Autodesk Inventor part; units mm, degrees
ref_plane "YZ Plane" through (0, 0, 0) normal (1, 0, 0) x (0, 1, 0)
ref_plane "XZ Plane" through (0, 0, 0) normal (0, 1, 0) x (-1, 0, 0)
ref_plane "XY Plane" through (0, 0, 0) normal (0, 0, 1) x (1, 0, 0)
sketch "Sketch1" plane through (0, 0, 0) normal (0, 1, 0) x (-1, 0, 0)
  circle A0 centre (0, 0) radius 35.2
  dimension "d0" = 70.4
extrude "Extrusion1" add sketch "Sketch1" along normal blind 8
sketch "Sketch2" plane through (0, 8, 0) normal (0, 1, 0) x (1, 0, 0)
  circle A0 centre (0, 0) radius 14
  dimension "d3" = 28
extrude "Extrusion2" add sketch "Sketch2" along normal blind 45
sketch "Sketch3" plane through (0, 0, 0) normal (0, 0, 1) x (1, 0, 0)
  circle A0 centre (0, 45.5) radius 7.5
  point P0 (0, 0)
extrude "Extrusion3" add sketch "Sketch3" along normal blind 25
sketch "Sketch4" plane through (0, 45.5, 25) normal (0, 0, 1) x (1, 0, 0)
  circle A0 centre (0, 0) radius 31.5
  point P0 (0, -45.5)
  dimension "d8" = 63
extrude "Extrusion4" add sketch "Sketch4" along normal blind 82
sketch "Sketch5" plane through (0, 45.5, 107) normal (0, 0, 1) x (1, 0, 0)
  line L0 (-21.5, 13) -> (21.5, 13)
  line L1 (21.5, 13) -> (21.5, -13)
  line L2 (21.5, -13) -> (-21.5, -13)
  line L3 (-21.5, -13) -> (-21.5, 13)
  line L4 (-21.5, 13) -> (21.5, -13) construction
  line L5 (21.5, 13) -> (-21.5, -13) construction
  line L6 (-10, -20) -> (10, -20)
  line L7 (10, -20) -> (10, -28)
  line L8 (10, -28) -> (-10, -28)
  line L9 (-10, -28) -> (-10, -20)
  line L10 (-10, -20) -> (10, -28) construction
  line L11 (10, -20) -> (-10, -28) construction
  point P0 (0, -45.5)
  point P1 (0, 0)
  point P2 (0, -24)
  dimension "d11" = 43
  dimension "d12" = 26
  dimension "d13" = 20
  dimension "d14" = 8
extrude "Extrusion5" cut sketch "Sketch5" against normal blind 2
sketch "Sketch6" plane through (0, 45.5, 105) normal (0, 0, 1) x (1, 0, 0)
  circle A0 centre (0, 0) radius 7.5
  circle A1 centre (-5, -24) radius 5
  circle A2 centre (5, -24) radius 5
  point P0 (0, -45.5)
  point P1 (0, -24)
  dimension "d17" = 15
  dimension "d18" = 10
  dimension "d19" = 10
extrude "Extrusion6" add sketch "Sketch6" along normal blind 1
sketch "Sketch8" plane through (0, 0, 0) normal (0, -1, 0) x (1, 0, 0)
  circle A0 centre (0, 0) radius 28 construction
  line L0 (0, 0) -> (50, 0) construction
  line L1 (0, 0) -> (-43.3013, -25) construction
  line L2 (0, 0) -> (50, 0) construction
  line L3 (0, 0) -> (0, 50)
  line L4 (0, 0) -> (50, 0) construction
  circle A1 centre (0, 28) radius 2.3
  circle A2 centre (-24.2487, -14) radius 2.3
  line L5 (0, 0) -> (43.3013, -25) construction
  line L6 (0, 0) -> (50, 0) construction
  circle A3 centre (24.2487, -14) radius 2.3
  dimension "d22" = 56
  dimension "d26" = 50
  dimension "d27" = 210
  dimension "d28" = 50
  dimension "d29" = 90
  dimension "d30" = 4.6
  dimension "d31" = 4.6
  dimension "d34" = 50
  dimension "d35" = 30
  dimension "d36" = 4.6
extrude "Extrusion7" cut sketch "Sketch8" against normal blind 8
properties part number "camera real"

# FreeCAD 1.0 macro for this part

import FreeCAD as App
import Part
import Sketcher
from FreeCAD import Vector

doc = App.newDocument("Part")
params = doc.addObject("Spreadsheet::Sheet", "Params")
for row, (alias, value) in enumerate([
    ("sketch1_diameter", "70.4 mm"),
    ("pad1_length", "8 mm"),
    ("sketch2_diameter", "28 mm"),
    ("pad2_length", "45 mm"),
    ("sketch3_diameter", "15 mm"),
    ("pad3_length", "25 mm"),
    ("sketch4_diameter", "63 mm"),
    ("pad4_length", "82 mm"),
    ("sketch5_width", "43 mm"),
    ("sketch5_width2", "20 mm"),
    ("sketch5_height", "26 mm"),
    ("sketch5_height2", "8 mm"),
    ("pocket1_length", "2 mm"),
    ("sketch6_diameter", "15 mm"),
    ("sketch6_diameter2", "10 mm"),
    ("pad5_length", "1 mm"),
    ("sketch7_diameter", "4.6 mm"),
    ("pocket2_length", "8 mm"),
], start=1):
    params.set(f"A{row}", alias)
    params.set(f"B{row}", "=" + value)
    params.setAlias(f"B{row}", alias)

body = doc.addObject("PartDesign::Body", "Body")

# Sketch on XZ plane
sketch1 = body.newObject("Sketcher::SketchObject", "Sketch")
sketch1.AttachmentSupport = (doc.getObject("XZ_Plane"), [""])
sketch1.MapMode = "FlatFace"
sketch1.addGeometry(Part.Circle(Vector(0, 0, 0), Vector(0, 0, 1), 35.2), False)
sketch1.addConstraint([
    Sketcher.Constraint("Coincident", 0, 3, -1, 1),
    Sketcher.Constraint("Diameter", 0, 70.4),
])
sketch1.setExpression("Constraints[1]", "Params.sketch1_diameter")
pad1 = body.newObject("PartDesign::Pad", "Pad")
pad1.Profile = sketch1
pad1.setExpression("Length", "Params.pad1_length")
pad1.Reversed = True

# Sketch on XZ plane
sketch2 = body.newObject("Sketcher::SketchObject", "Sketch001")
sketch2.AttachmentSupport = (doc.getObject("XZ_Plane"), [""])
sketch2.MapMode = "FlatFace"
sketch2.AttachmentOffset = App.Placement(Vector(0, 0, -8), App.Rotation())
sketch2.addGeometry(Part.Circle(Vector(0, 0, 0), Vector(0, 0, 1), 14), False)
sketch2.addConstraint([
    Sketcher.Constraint("Coincident", 0, 3, -1, 1),
    Sketcher.Constraint("Diameter", 0, 28.0),
])
sketch2.setExpression("Constraints[1]", "Params.sketch2_diameter")
pad2 = body.newObject("PartDesign::Pad", "Pad001")
pad2.Profile = sketch2
pad2.setExpression("Length", "Params.pad2_length")
pad2.Reversed = True

# Sketch on XY plane
sketch3 = body.newObject("Sketcher::SketchObject", "Sketch002")
sketch3.AttachmentSupport = (doc.getObject("XY_Plane"), [""])
sketch3.MapMode = "FlatFace"
sketch3.addGeometry(Part.Circle(Vector(0, 45.5, 0), Vector(0, 0, 1), 7.5), False)
sketch3.addConstraint([
    Sketcher.Constraint("PointOnObject", 0, 3, -2),
    Sketcher.Constraint("Diameter", 0, 15.0),
    Sketcher.Constraint("DistanceY", -1, 1, 0, 3, 45.5),
])
sketch3.setExpression("Constraints[1]", "Params.sketch3_diameter")
pad3 = body.newObject("PartDesign::Pad", "Pad002")
pad3.Profile = sketch3
pad3.setExpression("Length", "Params.pad3_length")

# Sketch on XY plane
sketch4 = body.newObject("Sketcher::SketchObject", "Sketch003")
sketch4.AttachmentSupport = (doc.getObject("XY_Plane"), [""])
sketch4.MapMode = "FlatFace"
sketch4.AttachmentOffset = App.Placement(Vector(0, 0, 25), App.Rotation())
sketch4.addGeometry(Part.Circle(Vector(0, 45.5, 0), Vector(0, 0, 1), 31.5), False)
sketch4.addConstraint([
    Sketcher.Constraint("PointOnObject", 0, 3, -2),
    Sketcher.Constraint("Diameter", 0, 63.0),
    Sketcher.Constraint("DistanceY", -1, 1, 0, 3, 45.5),
])
sketch4.setExpression("Constraints[1]", "Params.sketch4_diameter")
pad4 = body.newObject("PartDesign::Pad", "Pad003")
pad4.Profile = sketch4
pad4.setExpression("Length", "Params.pad4_length")

# Sketch on XY plane
sketch5 = body.newObject("Sketcher::SketchObject", "Sketch004")
sketch5.AttachmentSupport = (doc.getObject("XY_Plane"), [""])
sketch5.MapMode = "FlatFace"
sketch5.AttachmentOffset = App.Placement(Vector(0, 0, 107), App.Rotation())
sketch5.addGeometry([
    Part.LineSegment(Vector(21.5, 58.5, 0), Vector(-21.5, 58.5, 0)),  # 0
    Part.LineSegment(Vector(-21.5, 58.5, 0), Vector(-21.5, 32.5, 0)),  # 1
    Part.LineSegment(Vector(-21.5, 32.5, 0), Vector(21.5, 32.5, 0)),  # 2
    Part.LineSegment(Vector(21.5, 32.5, 0), Vector(21.5, 58.5, 0)),  # 3
    Part.LineSegment(Vector(10, 25.5, 0), Vector(-10, 25.5, 0)),  # 4
    Part.LineSegment(Vector(-10, 25.5, 0), Vector(-10, 17.5, 0)),  # 5
    Part.LineSegment(Vector(-10, 17.5, 0), Vector(10, 17.5, 0)),  # 6
    Part.LineSegment(Vector(10, 17.5, 0), Vector(10, 25.5, 0)),  # 7
], False)
sketch5.addConstraint([
    Sketcher.Constraint("Coincident", 0, 2, 1, 1),
    Sketcher.Constraint("Coincident", 1, 2, 2, 1),
    Sketcher.Constraint("Coincident", 2, 2, 3, 1),
    Sketcher.Constraint("Coincident", 3, 2, 0, 1),
    Sketcher.Constraint("Coincident", 4, 2, 5, 1),
    Sketcher.Constraint("Coincident", 5, 2, 6, 1),
    Sketcher.Constraint("Coincident", 6, 2, 7, 1),
    Sketcher.Constraint("Coincident", 7, 2, 4, 1),
    Sketcher.Constraint("Horizontal", 0),
    Sketcher.Constraint("Vertical", 1),
    Sketcher.Constraint("Horizontal", 2),
    Sketcher.Constraint("Vertical", 3),
    Sketcher.Constraint("Horizontal", 4),
    Sketcher.Constraint("Vertical", 5),
    Sketcher.Constraint("Horizontal", 6),
    Sketcher.Constraint("Vertical", 7),
    Sketcher.Constraint("DistanceX", 0, 2, 0, 1, 43.0),
    Sketcher.Constraint("DistanceX", 4, 2, 4, 1, 20.0),
    Sketcher.Constraint("DistanceY", 1, 2, 1, 1, 26.0),
    Sketcher.Constraint("DistanceY", 5, 2, 5, 1, 8.0),
    Sketcher.Constraint("DistanceX", 4, 2, -1, 1, 10.0),
    Sketcher.Constraint("DistanceY", 4, 2, 1, 2, 7.0),
    Sketcher.Constraint("DistanceX", 0, 2, -1, 1, 21.5),
    Sketcher.Constraint("DistanceY", -1, 1, 0, 2, 58.5),
])
sketch5.setExpression("Constraints[16]", "Params.sketch5_width")
sketch5.setExpression("Constraints[17]", "Params.sketch5_width2")
sketch5.setExpression("Constraints[18]", "Params.sketch5_height")
sketch5.setExpression("Constraints[19]", "Params.sketch5_height2")
pocket1 = body.newObject("PartDesign::Pocket", "Pocket")
pocket1.Profile = sketch5
pocket1.setExpression("Length", "Params.pocket1_length")

# Sketch on XY plane
sketch6 = body.newObject("Sketcher::SketchObject", "Sketch005")
sketch6.AttachmentSupport = (doc.getObject("XY_Plane"), [""])
sketch6.MapMode = "FlatFace"
sketch6.AttachmentOffset = App.Placement(Vector(0, 0, 105), App.Rotation())
sketch6.addGeometry([
    Part.Circle(Vector(0, 45.5, 0), Vector(0, 0, 1), 7.5),
    Part.Circle(Vector(-5, 21.5, 0), Vector(0, 0, 1), 5),
    Part.Circle(Vector(5, 21.5, 0), Vector(0, 0, 1), 5),
], False)
sketch6.addConstraint([
    Sketcher.Constraint("Equal", 1, 2),
    Sketcher.Constraint("Symmetric", 1, 3, 2, 3, -2),
    Sketcher.Constraint("PointOnObject", 0, 3, -2),
    Sketcher.Constraint("Diameter", 0, 15.0),
    Sketcher.Constraint("Diameter", 1, 10.0),
    Sketcher.Constraint("DistanceX", 1, 3, 2, 3, 10.0),
    Sketcher.Constraint("DistanceY", 1, 3, 0, 3, 24.0),
    Sketcher.Constraint("DistanceY", -1, 1, 0, 3, 45.5),
])
sketch6.setExpression("Constraints[3]", "Params.sketch6_diameter")
sketch6.setExpression("Constraints[4]", "Params.sketch6_diameter2")
pad5 = body.newObject("PartDesign::Pad", "Pad004")
pad5.Profile = sketch6
pad5.setExpression("Length", "Params.pad5_length")

# Sketch on XZ plane
sketch7 = body.newObject("Sketcher::SketchObject", "Sketch006")
sketch7.AttachmentSupport = (doc.getObject("XZ_Plane"), [""])
sketch7.MapMode = "FlatFace"
sketch7.addGeometry([
    Part.Circle(Vector(0, 28, 0), Vector(0, 0, 1), 2.3),
    Part.Circle(Vector(-24.2487, -14, 0), Vector(0, 0, 1), 2.3),
    Part.Circle(Vector(24.2487, -14, 0), Vector(0, 0, 1), 2.3),
], False)
sketch7.addConstraint([
    Sketcher.Constraint("Equal", 0, 1),
    Sketcher.Constraint("Equal", 1, 2),
    Sketcher.Constraint("Symmetric", 1, 3, 2, 3, -2),
    Sketcher.Constraint("PointOnObject", 0, 3, -2),
    Sketcher.Constraint("Diameter", 0, 4.6),
    Sketcher.Constraint("DistanceY", -1, 1, 0, 3, 28.0),
    Sketcher.Constraint("DistanceY", 1, 3, -1, 1, 14.0),
    Sketcher.Constraint("DistanceX", 1, 3, -1, 1, 24.2487),
])
sketch7.setExpression("Constraints[4]", "Params.sketch7_diameter")
pocket2 = body.newObject("PartDesign::Pocket", "Pocket001")
pocket2.Profile = sketch7
pocket2.setExpression("Length", "Params.pocket2_length")

doc.recompute()
